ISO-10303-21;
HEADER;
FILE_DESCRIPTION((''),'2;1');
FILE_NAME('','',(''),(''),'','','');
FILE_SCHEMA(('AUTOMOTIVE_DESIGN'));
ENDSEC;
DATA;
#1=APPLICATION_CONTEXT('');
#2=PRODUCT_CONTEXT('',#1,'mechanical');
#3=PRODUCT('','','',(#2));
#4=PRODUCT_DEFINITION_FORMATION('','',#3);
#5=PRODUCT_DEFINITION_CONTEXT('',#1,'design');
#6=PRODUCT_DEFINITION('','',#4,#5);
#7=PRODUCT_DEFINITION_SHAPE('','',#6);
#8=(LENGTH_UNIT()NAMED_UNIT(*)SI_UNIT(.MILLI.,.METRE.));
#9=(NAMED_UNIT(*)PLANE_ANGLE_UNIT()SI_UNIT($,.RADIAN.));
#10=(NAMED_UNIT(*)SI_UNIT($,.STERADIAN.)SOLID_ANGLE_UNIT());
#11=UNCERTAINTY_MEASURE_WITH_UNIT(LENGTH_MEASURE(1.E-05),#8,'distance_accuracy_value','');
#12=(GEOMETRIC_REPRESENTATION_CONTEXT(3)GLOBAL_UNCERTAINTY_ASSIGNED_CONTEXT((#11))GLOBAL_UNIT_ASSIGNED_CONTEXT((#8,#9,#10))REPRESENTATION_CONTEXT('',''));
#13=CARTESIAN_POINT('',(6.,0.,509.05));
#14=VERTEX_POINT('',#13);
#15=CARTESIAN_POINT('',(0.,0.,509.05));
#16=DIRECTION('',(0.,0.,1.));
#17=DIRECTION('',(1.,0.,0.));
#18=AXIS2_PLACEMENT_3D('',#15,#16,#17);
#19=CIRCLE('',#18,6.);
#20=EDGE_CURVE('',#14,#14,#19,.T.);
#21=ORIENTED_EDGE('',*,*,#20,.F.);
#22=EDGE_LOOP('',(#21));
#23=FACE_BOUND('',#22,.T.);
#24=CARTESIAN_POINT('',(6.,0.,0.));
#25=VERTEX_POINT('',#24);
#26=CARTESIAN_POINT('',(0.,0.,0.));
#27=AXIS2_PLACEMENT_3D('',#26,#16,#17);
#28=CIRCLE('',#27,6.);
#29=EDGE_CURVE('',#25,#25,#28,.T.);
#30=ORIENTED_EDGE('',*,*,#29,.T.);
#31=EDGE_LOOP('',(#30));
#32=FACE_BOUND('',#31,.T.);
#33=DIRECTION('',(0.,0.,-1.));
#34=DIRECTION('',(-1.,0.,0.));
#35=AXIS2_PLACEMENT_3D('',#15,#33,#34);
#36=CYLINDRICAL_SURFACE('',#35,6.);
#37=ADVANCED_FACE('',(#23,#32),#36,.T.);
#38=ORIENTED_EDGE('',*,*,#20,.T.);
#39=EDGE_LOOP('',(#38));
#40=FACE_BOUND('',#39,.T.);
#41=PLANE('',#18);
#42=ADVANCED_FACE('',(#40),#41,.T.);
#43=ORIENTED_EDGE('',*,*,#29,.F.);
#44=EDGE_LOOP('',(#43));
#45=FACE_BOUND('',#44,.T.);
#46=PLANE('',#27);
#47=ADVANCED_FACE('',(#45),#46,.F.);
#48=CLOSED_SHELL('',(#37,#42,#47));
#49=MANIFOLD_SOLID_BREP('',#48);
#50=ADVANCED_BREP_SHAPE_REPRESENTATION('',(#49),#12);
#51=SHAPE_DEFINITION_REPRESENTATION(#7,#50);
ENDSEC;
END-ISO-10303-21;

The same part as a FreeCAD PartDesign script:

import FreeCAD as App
import Part
import Sketcher

V = App.Vector

doc = App.newDocument("Part")
body = doc.addObject("PartDesign::Body", "Body")

sketch1 = doc.addObject("Sketcher::SketchObject", "Sketch")
body.addObject(sketch1)
sketch1.AttachmentSupport = (doc.XY_Plane, [""])
sketch1.MapMode = "FlatFace"
sketch1.addGeometry(Part.Circle(V(0, 0, 0), V(0, 0, 1), 6), False)
sketch1.addConstraint([
    Sketcher.Constraint("Coincident", 0, 3, -1, 1),
    Sketcher.Constraint("Diameter", 0, 12.0),
])
pad1 = doc.addObject("PartDesign::Pad", "Pad")
body.addObject(pad1)
pad1.Profile = sketch1
pad1.Length = 509.05

doc.recompute()
